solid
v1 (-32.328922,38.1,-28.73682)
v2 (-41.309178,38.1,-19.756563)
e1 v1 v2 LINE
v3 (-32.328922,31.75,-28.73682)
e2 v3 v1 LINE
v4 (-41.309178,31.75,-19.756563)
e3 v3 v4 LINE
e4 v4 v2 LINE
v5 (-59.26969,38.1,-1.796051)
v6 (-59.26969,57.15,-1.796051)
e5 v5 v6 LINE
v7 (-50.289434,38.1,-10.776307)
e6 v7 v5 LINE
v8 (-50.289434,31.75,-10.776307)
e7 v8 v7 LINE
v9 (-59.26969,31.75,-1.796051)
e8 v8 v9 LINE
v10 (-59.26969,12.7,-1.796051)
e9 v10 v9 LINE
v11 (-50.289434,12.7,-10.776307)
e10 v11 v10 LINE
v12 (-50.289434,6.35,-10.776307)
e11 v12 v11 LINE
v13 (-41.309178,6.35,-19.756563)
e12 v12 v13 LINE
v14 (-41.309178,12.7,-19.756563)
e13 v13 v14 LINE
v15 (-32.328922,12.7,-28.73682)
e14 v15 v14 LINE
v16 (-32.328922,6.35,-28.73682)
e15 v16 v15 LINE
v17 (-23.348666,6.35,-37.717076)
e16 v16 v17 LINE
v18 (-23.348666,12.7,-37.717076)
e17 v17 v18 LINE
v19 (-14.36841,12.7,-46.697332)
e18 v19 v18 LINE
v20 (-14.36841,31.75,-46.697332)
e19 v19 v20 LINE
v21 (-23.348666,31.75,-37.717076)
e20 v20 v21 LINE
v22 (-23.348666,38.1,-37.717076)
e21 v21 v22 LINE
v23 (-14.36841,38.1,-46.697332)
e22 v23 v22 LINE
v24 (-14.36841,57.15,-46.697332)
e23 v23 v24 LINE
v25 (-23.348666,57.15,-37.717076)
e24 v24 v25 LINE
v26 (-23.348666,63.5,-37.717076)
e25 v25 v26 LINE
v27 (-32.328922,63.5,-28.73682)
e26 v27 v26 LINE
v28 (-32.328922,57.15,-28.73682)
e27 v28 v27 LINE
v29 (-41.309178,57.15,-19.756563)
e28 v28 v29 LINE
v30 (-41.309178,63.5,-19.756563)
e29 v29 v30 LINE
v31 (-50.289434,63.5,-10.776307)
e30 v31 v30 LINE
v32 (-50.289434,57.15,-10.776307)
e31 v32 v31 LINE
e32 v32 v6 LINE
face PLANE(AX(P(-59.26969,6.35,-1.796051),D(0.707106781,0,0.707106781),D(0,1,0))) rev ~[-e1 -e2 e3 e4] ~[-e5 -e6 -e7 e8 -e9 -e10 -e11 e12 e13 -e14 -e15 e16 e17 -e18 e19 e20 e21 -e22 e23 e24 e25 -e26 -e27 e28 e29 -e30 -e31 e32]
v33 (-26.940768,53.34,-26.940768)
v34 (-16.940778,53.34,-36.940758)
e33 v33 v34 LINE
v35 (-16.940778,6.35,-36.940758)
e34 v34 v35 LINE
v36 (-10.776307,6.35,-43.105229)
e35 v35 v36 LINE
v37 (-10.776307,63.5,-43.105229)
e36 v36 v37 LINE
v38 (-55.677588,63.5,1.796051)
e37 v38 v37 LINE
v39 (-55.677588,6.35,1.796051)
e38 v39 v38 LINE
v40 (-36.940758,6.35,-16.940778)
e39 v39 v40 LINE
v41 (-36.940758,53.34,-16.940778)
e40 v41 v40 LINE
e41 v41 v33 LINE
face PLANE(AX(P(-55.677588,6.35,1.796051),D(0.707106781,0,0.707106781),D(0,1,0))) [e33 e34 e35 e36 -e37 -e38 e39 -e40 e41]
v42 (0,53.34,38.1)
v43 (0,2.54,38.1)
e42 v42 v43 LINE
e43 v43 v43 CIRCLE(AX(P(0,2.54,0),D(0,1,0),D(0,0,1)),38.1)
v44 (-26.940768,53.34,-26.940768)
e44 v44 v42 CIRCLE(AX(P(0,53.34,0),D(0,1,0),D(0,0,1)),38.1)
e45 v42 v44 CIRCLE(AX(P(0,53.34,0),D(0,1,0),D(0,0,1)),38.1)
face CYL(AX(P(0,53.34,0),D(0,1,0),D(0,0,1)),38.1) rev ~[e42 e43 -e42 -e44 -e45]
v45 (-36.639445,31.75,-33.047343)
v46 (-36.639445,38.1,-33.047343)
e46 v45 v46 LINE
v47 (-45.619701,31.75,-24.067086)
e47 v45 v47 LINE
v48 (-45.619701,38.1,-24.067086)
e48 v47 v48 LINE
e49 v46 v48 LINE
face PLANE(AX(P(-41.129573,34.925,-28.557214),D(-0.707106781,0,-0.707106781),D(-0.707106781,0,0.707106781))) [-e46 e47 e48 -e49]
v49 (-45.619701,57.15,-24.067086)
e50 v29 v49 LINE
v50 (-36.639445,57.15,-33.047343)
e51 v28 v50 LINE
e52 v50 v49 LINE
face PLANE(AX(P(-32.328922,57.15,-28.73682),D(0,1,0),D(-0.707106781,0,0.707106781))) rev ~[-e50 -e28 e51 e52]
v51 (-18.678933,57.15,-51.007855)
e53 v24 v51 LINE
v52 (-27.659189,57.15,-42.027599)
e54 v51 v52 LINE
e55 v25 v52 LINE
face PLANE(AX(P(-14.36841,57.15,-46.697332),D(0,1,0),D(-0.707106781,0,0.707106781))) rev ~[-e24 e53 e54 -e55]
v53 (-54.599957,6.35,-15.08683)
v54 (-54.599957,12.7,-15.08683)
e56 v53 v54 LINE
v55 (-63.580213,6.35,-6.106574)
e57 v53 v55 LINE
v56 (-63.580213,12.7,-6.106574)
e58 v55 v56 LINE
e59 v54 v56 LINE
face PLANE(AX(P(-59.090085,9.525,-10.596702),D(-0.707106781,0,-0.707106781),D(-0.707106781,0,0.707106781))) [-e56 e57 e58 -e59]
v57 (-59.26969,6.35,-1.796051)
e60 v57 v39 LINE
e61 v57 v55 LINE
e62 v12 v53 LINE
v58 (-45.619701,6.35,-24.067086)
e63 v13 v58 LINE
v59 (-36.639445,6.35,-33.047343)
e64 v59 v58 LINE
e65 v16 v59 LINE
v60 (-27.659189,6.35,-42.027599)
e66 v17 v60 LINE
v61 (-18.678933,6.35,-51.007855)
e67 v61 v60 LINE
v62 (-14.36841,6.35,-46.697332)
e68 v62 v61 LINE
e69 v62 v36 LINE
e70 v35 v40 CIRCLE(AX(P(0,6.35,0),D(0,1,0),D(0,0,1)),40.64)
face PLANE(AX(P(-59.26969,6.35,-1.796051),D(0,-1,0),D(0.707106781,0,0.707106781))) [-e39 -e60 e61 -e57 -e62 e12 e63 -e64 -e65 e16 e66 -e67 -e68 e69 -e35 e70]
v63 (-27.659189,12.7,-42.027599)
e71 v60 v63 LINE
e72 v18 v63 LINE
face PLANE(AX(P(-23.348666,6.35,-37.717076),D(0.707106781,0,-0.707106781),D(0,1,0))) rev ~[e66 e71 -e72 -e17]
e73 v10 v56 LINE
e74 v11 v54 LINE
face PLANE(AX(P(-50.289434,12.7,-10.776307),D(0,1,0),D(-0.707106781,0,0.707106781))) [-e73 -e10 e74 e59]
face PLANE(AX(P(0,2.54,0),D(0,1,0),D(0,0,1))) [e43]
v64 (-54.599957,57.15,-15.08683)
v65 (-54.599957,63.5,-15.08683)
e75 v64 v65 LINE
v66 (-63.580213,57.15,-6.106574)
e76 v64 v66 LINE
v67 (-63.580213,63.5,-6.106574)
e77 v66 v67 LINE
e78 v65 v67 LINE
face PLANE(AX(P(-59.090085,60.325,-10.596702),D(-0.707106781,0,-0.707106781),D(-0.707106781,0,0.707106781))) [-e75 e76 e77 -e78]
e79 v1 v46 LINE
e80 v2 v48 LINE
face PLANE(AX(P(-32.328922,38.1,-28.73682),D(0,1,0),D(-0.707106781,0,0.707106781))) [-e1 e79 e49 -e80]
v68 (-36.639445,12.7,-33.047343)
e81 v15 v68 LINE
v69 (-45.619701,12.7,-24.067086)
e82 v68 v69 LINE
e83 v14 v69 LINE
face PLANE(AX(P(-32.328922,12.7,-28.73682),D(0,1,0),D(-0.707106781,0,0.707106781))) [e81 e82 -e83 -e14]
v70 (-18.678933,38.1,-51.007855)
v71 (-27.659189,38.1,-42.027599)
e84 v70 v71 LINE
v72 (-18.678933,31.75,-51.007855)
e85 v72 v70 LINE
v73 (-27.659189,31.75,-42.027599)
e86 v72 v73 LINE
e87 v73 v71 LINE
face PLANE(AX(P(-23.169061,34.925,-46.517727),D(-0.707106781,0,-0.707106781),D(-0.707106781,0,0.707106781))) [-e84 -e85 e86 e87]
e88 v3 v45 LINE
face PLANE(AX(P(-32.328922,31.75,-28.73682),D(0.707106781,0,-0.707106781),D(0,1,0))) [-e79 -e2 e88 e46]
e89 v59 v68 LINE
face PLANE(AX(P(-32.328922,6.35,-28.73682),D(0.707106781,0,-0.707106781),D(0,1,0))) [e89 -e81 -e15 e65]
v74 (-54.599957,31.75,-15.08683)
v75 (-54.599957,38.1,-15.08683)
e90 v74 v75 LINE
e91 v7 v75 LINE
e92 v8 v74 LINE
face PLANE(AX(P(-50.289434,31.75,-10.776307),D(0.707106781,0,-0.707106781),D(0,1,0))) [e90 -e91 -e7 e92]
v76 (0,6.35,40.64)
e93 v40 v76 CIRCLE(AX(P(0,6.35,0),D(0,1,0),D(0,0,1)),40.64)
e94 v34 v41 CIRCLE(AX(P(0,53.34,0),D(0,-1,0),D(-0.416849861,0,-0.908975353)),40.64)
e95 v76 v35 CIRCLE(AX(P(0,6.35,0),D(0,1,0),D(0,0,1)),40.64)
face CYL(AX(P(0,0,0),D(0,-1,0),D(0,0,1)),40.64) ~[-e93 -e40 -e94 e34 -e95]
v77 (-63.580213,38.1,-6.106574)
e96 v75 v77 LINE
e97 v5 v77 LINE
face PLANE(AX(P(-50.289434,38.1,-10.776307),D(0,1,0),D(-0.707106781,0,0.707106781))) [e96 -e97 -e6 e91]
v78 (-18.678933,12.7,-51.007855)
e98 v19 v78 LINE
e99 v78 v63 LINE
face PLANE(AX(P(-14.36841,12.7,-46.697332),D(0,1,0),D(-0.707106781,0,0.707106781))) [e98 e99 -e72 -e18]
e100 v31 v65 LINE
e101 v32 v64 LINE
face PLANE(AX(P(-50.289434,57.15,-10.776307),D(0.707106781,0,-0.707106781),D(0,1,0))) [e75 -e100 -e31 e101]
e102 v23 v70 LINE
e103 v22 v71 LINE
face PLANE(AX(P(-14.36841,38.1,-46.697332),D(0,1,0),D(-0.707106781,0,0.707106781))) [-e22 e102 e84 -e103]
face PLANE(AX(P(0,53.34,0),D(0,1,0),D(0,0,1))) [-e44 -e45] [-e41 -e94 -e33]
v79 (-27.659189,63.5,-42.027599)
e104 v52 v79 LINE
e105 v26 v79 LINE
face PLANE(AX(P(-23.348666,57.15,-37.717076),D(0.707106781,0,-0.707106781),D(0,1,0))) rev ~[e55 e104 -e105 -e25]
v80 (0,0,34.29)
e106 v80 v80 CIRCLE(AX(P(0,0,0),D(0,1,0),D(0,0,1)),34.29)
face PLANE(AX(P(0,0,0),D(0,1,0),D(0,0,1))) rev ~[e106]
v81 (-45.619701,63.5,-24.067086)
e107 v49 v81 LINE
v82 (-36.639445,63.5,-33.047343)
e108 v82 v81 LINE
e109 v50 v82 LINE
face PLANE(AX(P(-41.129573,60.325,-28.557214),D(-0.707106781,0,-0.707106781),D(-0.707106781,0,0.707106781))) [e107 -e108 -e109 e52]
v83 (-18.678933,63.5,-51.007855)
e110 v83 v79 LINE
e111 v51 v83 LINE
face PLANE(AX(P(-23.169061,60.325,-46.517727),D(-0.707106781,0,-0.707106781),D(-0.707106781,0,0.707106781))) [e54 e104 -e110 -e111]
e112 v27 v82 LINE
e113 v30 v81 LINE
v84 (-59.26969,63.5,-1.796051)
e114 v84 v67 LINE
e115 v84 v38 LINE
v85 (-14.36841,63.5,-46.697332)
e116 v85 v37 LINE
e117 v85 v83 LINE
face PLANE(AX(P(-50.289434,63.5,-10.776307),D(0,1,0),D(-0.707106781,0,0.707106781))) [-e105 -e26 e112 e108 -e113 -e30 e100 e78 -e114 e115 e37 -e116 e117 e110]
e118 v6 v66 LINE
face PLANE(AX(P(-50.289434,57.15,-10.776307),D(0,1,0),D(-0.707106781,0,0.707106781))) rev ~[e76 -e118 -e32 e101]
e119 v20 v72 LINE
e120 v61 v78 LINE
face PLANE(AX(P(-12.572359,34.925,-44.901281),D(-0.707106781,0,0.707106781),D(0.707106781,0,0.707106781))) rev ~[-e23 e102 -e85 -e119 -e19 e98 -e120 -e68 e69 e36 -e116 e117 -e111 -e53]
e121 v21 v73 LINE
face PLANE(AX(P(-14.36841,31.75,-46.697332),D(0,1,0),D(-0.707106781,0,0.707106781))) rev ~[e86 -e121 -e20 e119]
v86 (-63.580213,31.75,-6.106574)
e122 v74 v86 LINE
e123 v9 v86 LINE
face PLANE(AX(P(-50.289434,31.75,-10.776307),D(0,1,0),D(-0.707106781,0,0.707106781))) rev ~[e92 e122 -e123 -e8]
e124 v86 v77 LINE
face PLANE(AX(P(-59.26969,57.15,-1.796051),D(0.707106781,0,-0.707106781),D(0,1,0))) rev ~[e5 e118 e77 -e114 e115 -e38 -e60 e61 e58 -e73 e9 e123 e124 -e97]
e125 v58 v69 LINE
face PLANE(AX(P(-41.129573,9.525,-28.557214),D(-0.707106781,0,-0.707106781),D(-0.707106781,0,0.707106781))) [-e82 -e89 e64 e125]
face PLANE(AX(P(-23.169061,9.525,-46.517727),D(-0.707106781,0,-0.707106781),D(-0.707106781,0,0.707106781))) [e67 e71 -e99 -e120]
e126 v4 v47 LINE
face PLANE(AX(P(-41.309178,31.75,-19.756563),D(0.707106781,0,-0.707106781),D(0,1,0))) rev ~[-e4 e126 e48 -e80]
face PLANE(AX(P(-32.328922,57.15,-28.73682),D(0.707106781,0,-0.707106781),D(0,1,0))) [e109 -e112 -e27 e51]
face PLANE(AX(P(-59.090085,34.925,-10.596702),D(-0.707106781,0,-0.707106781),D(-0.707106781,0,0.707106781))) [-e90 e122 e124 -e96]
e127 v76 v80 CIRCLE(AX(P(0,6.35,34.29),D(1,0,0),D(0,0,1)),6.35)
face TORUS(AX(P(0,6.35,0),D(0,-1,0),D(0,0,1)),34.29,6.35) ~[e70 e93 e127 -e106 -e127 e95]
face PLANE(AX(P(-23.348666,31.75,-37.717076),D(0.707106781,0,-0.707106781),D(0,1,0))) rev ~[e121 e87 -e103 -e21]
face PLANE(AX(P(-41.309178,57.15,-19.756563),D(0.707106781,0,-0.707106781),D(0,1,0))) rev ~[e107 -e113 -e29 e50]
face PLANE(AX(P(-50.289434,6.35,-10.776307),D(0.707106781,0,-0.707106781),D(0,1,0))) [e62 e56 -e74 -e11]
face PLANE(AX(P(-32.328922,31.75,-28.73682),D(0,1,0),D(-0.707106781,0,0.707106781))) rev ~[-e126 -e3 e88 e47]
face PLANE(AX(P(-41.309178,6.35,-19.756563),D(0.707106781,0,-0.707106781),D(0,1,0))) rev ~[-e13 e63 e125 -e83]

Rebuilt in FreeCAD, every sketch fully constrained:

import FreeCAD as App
import Part
import Sketcher
Q = App.Units.Quantity


def edges_at(feature, points):
    """Names of the edges that pass closest to the given points."""
    edges = feature.Shape.Edges
    near = lambda p: min(range(len(edges)), key=lambda i: edges[i].distToShape(Part.Vertex(*p))[0])
    return sorted({f"Edge{near(p) + 1}" for p in points})


def add_polygon(sketch, points):
    """Adds a closed chain of lines whose ends are joined by coincident constraints."""
    first, n = sketch.GeometryCount, len(points)
    for a, b in zip(points, points[1:] + points[:1]):
        sketch.addGeometry(Part.LineSegment(App.Vector(*a, 0), App.Vector(*b, 0)), False)
    for i in range(n):
        sketch.addConstraint(Sketcher.Constraint("Coincident", first + i, 2, first + (i + 1) % n, 1))

doc = App.newDocument("Part")
params = doc.addObject("Spreadsheet::Sheet", "Params")
for row, (alias, value) in enumerate([
    ("sketch1_diameter", "3.2 in"),
    ("pad1_length", "2.1 in"),
    ("fillet_radius", "0.25 in"),
    ("sketch2_diameter", "3 in"),
    ("pocket1_length", "2 in"),
    ("sketch3_width", "0.2 in"),
    ("sketch3_height", "2.25 in"),
    ("pad2_length", "2.5 in"),
    ("sketch4_width", "0.5 in"),
    ("sketch4_height", "0.25 in"),
    ("pad3_length", "0.24 in"),
], start=1):
    params.set(f"A{row}", alias)
    params.set(f"B{row}", "=" + value)
    params.setAlias(f"B{row}", alias)

body = doc.addObject("PartDesign::Body", "Body")

sketch1 = body.newObject("Sketcher::SketchObject", "Sketch")
sketch1.AttachmentSupport = (doc.getObject("XZ_Plane"), [""])
sketch1.MapMode = "FlatFace"
sketch1.addGeometry(Part.Circle(App.Vector(0, 0, 0), App.Vector(0, 0, 1), 41), False)
sketch1.addConstraint(Sketcher.Constraint("Coincident", 0, 3, -1, 1))
sketch1.addConstraint(Sketcher.Constraint("Diameter", 0, Q("3.2 in")))
sketch1.setExpression("Constraints[1]", "Params.sketch1_diameter")
pad1 = body.newObject("PartDesign::Pad", "Pad")
pad1.Profile = sketch1
pad1.setExpression("Length", "Params.pad1_length")
pad1.Reversed = True
doc.recompute()

fillet = body.newObject("PartDesign::Fillet", "Fillet")
fillet.Base = (pad1, edges_at(pad1, [(0, 0, -40.64)]))
fillet.setExpression("Radius", "Params.fillet_radius")

sketch2 = body.newObject("Sketcher::SketchObject", "Sketch001")
sketch2.AttachmentSupport = (doc.getObject("XZ_Plane"), [""])
sketch2.MapMode = "FlatFace"
sketch2.AttachmentOffset = App.Placement(App.Vector(0, 0, -2.1 * 25.4), App.Rotation())
sketch2.addGeometry(Part.Circle(App.Vector(0, 0, 0), App.Vector(0, 0, 1), 38), False)
sketch2.addConstraint(Sketcher.Constraint("Coincident", 0, 3, -1, 1))
sketch2.addConstraint(Sketcher.Constraint("Diameter", 0, Q("3 in")))
sketch2.setExpression("Constraints[1]", "Params.sketch2_diameter")
pocket1 = body.newObject("PartDesign::Pocket", "Pocket")
pocket1.Profile = sketch2
pocket1.setExpression("Length", "Params.pocket1_length")
pocket1.Reversed = True
body2 = doc.addObject("PartDesign::Body", "Body001")

sketch3 = body2.newObject("Sketcher::SketchObject", "Sketch002")
sketch3.Placement = App.Placement(App.Vector(-28.73682, 0, 28.73682), App.Rotation(App.Vector(0.707106781, 0, 0.707106781), App.Vector(0, 0.999999999, 0), App.Vector(-0.707106781, 0, 0.707106781), "ZXY"))
add_polygon(sketch3, [(-43, 63), (-43, 6), (-38, 6), (-38, 63)])
sketch3.addConstraint(Sketcher.Constraint("Vertical", 0))
sketch3.addConstraint(Sketcher.Constraint("Horizontal", 1))
sketch3.addConstraint(Sketcher.Constraint("Vertical", 2))
sketch3.addConstraint(Sketcher.Constraint("Horizontal", 3))
sketch3.addConstraint(Sketcher.Constraint("DistanceX", 1, 1, 1, 2, Q("0.2 in")))
sketch3.addConstraint(Sketcher.Constraint("DistanceY", 0, 2, 0, 1, Q("2.25 in")))
sketch3.addConstraint(Sketcher.Constraint("DistanceX", 0, 2, -1, 1, Q("1.7 in")))
sketch3.addConstraint(Sketcher.Constraint("DistanceY", -1, 1, 2, 2, Q("2.5 in")))
sketch3.setExpression("Constraints[8]", "Params.sketch3_width")
sketch3.setExpression("Constraints[9]", "Params.sketch3_height")
pad2 = body2.newObject("PartDesign::Pad", "Pad001")
pad2.Profile = sketch3
pad2.setExpression("Length", "Params.pad2_length")
pad2.Reversed = True
doc.recompute()

boolean = body.newObject("PartDesign::Boolean", "Boolean")
boolean.Type = "Fuse"
boolean.addObjects([body2])

sketch4 = body.newObject("Sketcher::SketchObject", "Sketch003")
sketch4.Placement = App.Placement(App.Vector(-30.532871, 0, -30.532871), App.Rotation(App.Vector(-0.707106781, 0, 0.707106781), App.Vector(0, 0.999999999, 0), App.Vector(-0.707106781, 0, -0.707106781), "ZXY"))
add_polygon(sketch4, [(28, 63), (28, 57), (41, 57), (41, 63)])
add_polygon(sketch4, [(28, 38), (28, 32), (41, 32), (41, 38)])
add_polygon(sketch4, [(3, 63), (3, 57), (15, 57), (15, 63)])
add_polygon(sketch4, [(28, 13), (28, 6), (41, 6), (41, 13)])
add_polygon(sketch4, [(3, 38), (3, 32), (15, 32), (15, 38)])
add_polygon(sketch4, [(3, 13), (3, 6), (15, 6), (15, 13)])
add_polygon(sketch4, [(-23, 63), (-23, 57), (-10, 57), (-10, 63)])
add_polygon(sketch4, [(-23, 38), (-23, 32), (-10, 32), (-10, 38)])
add_polygon(sketch4, [(-23, 13), (-23, 6), (-10, 6), (-10, 13)])
sketch4.addConstraint(Sketcher.Constraint("Vertical", 0))
sketch4.addConstraint(Sketcher.Constraint("Horizontal", 1))
sketch4.addConstraint(Sketcher.Constraint("Vertical", 2))
sketch4.addConstraint(Sketcher.Constraint("Horizontal", 3))
sketch4.addConstraint(Sketcher.Constraint("Vertical", 4))
sketch4.addConstraint(Sketcher.Constraint("Horizontal", 5))
sketch4.addConstraint(Sketcher.Constraint("Vertical", 6))
sketch4.addConstraint(Sketcher.Constraint("Horizontal", 7))
sketch4.addConstraint(Sketcher.Constraint("Vertical", 8))
sketch4.addConstraint(Sketcher.Constraint("Horizontal", 9))
sketch4.addConstraint(Sketcher.Constraint("Vertical", 10))
sketch4.addConstraint(Sketcher.Constraint("Horizontal", 11))
sketch4.addConstraint(Sketcher.Constraint("Vertical", 12))
sketch4.addConstraint(Sketcher.Constraint("Horizontal", 13))
sketch4.addConstraint(Sketcher.Constraint("Vertical", 14))
sketch4.addConstraint(Sketcher.Constraint("Horizontal", 15))
sketch4.addConstraint(Sketcher.Constraint("Vertical", 16))
sketch4.addConstraint(Sketcher.Constraint("Horizontal", 17))
sketch4.addConstraint(Sketcher.Constraint("Vertical", 18))
sketch4.addConstraint(Sketcher.Constraint("Horizontal", 19))
sketch4.addConstraint(Sketcher.Constraint("Vertical", 20))
sketch4.addConstraint(Sketcher.Constraint("Horizontal", 21))
sketch4.addConstraint(Sketcher.Constraint("Vertical", 22))
sketch4.addConstraint(Sketcher.Constraint("Horizontal", 23))
sketch4.addConstraint(Sketcher.Constraint("Vertical", 24))
sketch4.addConstraint(Sketcher.Constraint("Horizontal", 25))
sketch4.addConstraint(Sketcher.Constraint("Vertical", 26))
sketch4.addConstraint(Sketcher.Constraint("Horizontal", 27))
sketch4.addConstraint(Sketcher.Constraint("Vertical", 28))
sketch4.addConstraint(Sketcher.Constraint("Horizontal", 29))
sketch4.addConstraint(Sketcher.Constraint("Vertical", 30))
sketch4.addConstraint(Sketcher.Constraint("Horizontal", 31))
sketch4.addConstraint(Sketcher.Constraint("Vertical", 32))
sketch4.addConstraint(Sketcher.Constraint("Horizontal", 33))
sketch4.addConstraint(Sketcher.Constraint("Vertical", 34))
sketch4.addConstraint(Sketcher.Constraint("Horizontal", 35))
sketch4.addConstraint(Sketcher.Constraint("Horizontal", 1, 2, 8, 2))
sketch4.addConstraint(Sketcher.Constraint("Horizontal", 3, 2, 10, 2))
sketch4.addConstraint(Sketcher.Constraint("Horizontal", 5, 2, 16, 2))
sketch4.addConstraint(Sketcher.Constraint("Horizontal", 7, 2, 18, 2))
sketch4.addConstraint(Sketcher.Constraint("Horizontal", 13, 2, 20, 2))
sketch4.addConstraint(Sketcher.Constraint("Horizontal", 15, 2, 22, 2))
sketch4.addConstraint(Sketcher.Constraint("Horizontal", 9, 2, 24, 2))
sketch4.addConstraint(Sketcher.Constraint("Horizontal", 11, 2, 26, 2))
sketch4.addConstraint(Sketcher.Constraint("Horizontal", 17, 2, 28, 2))
sketch4.addConstraint(Sketcher.Constraint("Horizontal", 19, 2, 30, 2))
sketch4.addConstraint(Sketcher.Constraint("Horizontal", 21, 2, 32, 2))
sketch4.addConstraint(Sketcher.Constraint("Horizontal", 23, 2, 34, 2))
sketch4.addConstraint(Sketcher.Constraint("Vertical", 3, 2, 4, 2))
sketch4.addConstraint(Sketcher.Constraint("Vertical", 2, 2, 5, 2))
sketch4.addConstraint(Sketcher.Constraint("Vertical", 7, 2, 12, 2))
sketch4.addConstraint(Sketcher.Constraint("Vertical", 6, 2, 13, 2))
sketch4.addConstraint(Sketcher.Constraint("Vertical", 11, 2, 16, 2))
sketch4.addConstraint(Sketcher.Constraint("Vertical", 10, 2, 17, 2))
sketch4.addConstraint(Sketcher.Constraint("Vertical", 19, 2, 20, 2))
sketch4.addConstraint(Sketcher.Constraint("Vertical", 18, 2, 21, 2))
sketch4.addConstraint(Sketcher.Constraint("Vertical", 27, 2, 28, 2))
sketch4.addConstraint(Sketcher.Constraint("Vertical", 26, 2, 29, 2))
sketch4.addConstraint(Sketcher.Constraint("Vertical", 31, 2, 32, 2))
sketch4.addConstraint(Sketcher.Constraint("Vertical", 30, 2, 33, 2))
sketch4.addConstraint(Sketcher.Constraint("Equal", 7, 9))
sketch4.addConstraint(Sketcher.Constraint("Equal", 23, 25))
sketch4.addConstraint(Sketcher.Constraint("Equal", 2, 4))
sketch4.addConstraint(Sketcher.Constraint("Equal", 10, 12))
sketch4.addConstraint(Sketcher.Constraint("DistanceX", 1, 1, 1, 2, Q("0.5 in")))
sketch4.addConstraint(Sketcher.Constraint("DistanceY", 4, 2, 0, 2, Q("1 in")))
sketch4.addConstraint(Sketcher.Constraint("DistanceX", 8, 2, 0, 2, Q("1 in")))
sketch4.addConstraint(Sketcher.Constraint("DistanceY", 12, 2, 4, 2, Q("1 in")))
sketch4.addConstraint(Sketcher.Constraint("DistanceX", 24, 2, 8, 2, Q("1 in")))
sketch4.addConstraint(Sketcher.Constraint("DistanceY", 0, 2, 0, 1, Q("0.25 in")))
sketch4.addConstraint(Sketcher.Constraint("DistanceX", -1, 1, 0, 2, Q("1.1 in")))
sketch4.addConstraint(Sketcher.Constraint("DistanceY", -1, 1, 2, 2, Q("2.5 in")))
sketch4.setExpression("Constraints[100]", "Params.sketch4_width")
sketch4.setExpression("Constraints[105]", "Params.sketch4_height")
pad3 = body.newObject("PartDesign::Pad", "Pad002")
pad3.Profile = sketch4
pad3.setExpression("Length", "Params.pad3_length")

doc.recompute()
